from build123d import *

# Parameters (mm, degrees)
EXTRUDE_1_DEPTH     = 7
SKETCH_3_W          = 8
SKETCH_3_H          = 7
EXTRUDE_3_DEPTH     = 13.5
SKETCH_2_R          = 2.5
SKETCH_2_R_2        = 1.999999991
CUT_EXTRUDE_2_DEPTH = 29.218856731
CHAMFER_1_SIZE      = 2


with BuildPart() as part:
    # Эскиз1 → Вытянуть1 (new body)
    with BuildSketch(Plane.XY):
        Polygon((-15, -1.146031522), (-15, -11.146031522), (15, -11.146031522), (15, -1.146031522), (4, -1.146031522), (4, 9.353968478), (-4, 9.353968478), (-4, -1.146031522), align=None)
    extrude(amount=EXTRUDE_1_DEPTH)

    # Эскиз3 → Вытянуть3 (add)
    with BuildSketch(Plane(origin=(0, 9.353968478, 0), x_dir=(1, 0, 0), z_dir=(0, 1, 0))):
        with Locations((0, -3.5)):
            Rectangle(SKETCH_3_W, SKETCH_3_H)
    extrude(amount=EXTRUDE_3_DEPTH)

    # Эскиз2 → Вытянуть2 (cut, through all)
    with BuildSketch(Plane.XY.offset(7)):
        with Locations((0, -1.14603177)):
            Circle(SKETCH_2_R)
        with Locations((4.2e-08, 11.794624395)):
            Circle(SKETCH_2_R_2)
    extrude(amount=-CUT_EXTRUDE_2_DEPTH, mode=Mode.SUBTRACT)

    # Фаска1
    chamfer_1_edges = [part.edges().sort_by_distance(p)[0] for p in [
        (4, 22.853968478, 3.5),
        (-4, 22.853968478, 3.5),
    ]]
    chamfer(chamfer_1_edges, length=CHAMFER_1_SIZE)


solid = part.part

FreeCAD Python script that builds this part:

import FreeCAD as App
import Part
import Sketcher
from FreeCAD import Vector


def edges_at(feature, points):
    """Names of the edges that pass closest to the given points."""
    edges = feature.Shape.Edges
    near = lambda p: min(range(len(edges)), key=lambda i: edges[i].distToShape(Part.Vertex(*p))[0])
    return sorted({f"Edge{near(p) + 1}" for p in points})


def add_polygon(sketch, points):
    """Adds a closed chain of lines whose ends are joined by coincident constraints."""
    first, n = sketch.GeometryCount, len(points)
    for a, b in zip(points, points[1:] + points[:1]):
        sketch.addGeometry(Part.LineSegment(App.Vector(*a, 0), App.Vector(*b, 0)), False)
    for i in range(n):
        sketch.addConstraint(Sketcher.Constraint("Coincident", first + i, 2, first + (i + 1) % n, 1))

doc = App.newDocument("Part")
body = doc.addObject("PartDesign::Body", "Body")

# Sketch on XY plane
sketch1 = body.newObject("Sketcher::SketchObject", "Sketch")
sketch1.AttachmentSupport = (doc.getObject("XY_Plane"), [""])
sketch1.MapMode = "FlatFace"
add_polygon(sketch1, [(-15, -1.146032), (-15, -11.146032), (15, -11.146032), (15, -1.146032), (4, -1.146032), (4, 9.353968), (-4, 9.353968), (-4, -1.146032)])  # lines 0-7
sketch1.addConstraint([
    Sketcher.Constraint("Vertical", 0),
    Sketcher.Constraint("Horizontal", 1),
    Sketcher.Constraint("Vertical", 2),
    Sketcher.Constraint("Horizontal", 3),
    Sketcher.Constraint("Vertical", 4),
    Sketcher.Constraint("Horizontal", 5),
    Sketcher.Constraint("Vertical", 6),
    Sketcher.Constraint("Horizontal", 7),
    Sketcher.Constraint("Symmetric", 3, 2, 6, 2, -2),
    Sketcher.Constraint("Equal", 3, 7),
    Sketcher.Constraint("DistanceX", 1, 1, 1, 2, 30.0),
    Sketcher.Constraint("DistanceX", 3, 2, 3, 1, 11.0),
    Sketcher.Constraint("DistanceY", 0, 2, 0, 1, 10.0),
    Sketcher.Constraint("DistanceY", 4, 1, 4, 2, 10.5),
    Sketcher.Constraint("DistanceY", 0, 2, -1, 1, 11.146032),
])
pad1 = body.newObject("PartDesign::Pad", "Pad")
pad1.Profile = sketch1
pad1.Length = 7

# Sketch on XZ plane
sketch2 = body.newObject("Sketcher::SketchObject", "Sketch001")
sketch2.AttachmentSupport = (doc.getObject("XZ_Plane"), [""])
sketch2.MapMode = "FlatFace"
sketch2.AttachmentOffset = App.Placement(Vector(0, 0, -9.353968), App.Rotation())
add_polygon(sketch2, [(-4, 0), (-4, 7), (4, 7), (4, 0)])  # lines 0-3
sketch2.addConstraint([
    Sketcher.Constraint("Vertical", 0),
    Sketcher.Constraint("Horizontal", 1),
    Sketcher.Constraint("Vertical", 2),
    Sketcher.Constraint("Horizontal", 3),
    Sketcher.Constraint("Symmetric", 2, 2, 3, 2, -1, 1),
    Sketcher.Constraint("DistanceX", 1, 1, 1, 2, 8.0),
    Sketcher.Constraint("DistanceY", 0, 1, 0, 2, 7.0),
])
pad2 = body.newObject("PartDesign::Pad", "Pad001")
pad2.Profile = sketch2
pad2.Length = 13.5
pad2.Reversed = True

# Sketch on XY plane
sketch3 = body.newObject("Sketcher::SketchObject", "Sketch002")
sketch3.AttachmentSupport = (doc.getObject("XY_Plane"), [""])
sketch3.MapMode = "FlatFace"
sketch3.AttachmentOffset = App.Placement(Vector(0, 0, 7), App.Rotation())
sketch3.addGeometry([
    Part.Circle(Vector(0, -1.146032, 0), Vector(0, 0, 1), 2.5),
    Part.Circle(Vector(0, 11.794624, 0), Vector(0, 0, 1), 2),
], False)
sketch3.addConstraint([
    Sketcher.Constraint("PointOnObject", 0, 3, -2),
    Sketcher.Constraint("PointOnObject", 1, 3, -2),
    Sketcher.Constraint("Diameter", 0, 5.0),
    Sketcher.Constraint("Diameter", 1, 4.0),
    Sketcher.Constraint("DistanceY", 0, 3, -1, 1, 1.146032),
    Sketcher.Constraint("DistanceY", -1, 1, 1, 3, 11.794624),
])
pocket1 = body.newObject("PartDesign::Pocket", "Pocket")
pocket1.Profile = sketch3
pocket1.Type = "ThroughAll"
doc.recompute()

chamfer = body.newObject("PartDesign::Chamfer", "Chamfer")
chamfer.Base = (pocket1, edges_at(pocket1, [(4, 22.854, 3.5), (-4, 22.854, 3.5)]))
chamfer.Size = 2

doc.recompute()
